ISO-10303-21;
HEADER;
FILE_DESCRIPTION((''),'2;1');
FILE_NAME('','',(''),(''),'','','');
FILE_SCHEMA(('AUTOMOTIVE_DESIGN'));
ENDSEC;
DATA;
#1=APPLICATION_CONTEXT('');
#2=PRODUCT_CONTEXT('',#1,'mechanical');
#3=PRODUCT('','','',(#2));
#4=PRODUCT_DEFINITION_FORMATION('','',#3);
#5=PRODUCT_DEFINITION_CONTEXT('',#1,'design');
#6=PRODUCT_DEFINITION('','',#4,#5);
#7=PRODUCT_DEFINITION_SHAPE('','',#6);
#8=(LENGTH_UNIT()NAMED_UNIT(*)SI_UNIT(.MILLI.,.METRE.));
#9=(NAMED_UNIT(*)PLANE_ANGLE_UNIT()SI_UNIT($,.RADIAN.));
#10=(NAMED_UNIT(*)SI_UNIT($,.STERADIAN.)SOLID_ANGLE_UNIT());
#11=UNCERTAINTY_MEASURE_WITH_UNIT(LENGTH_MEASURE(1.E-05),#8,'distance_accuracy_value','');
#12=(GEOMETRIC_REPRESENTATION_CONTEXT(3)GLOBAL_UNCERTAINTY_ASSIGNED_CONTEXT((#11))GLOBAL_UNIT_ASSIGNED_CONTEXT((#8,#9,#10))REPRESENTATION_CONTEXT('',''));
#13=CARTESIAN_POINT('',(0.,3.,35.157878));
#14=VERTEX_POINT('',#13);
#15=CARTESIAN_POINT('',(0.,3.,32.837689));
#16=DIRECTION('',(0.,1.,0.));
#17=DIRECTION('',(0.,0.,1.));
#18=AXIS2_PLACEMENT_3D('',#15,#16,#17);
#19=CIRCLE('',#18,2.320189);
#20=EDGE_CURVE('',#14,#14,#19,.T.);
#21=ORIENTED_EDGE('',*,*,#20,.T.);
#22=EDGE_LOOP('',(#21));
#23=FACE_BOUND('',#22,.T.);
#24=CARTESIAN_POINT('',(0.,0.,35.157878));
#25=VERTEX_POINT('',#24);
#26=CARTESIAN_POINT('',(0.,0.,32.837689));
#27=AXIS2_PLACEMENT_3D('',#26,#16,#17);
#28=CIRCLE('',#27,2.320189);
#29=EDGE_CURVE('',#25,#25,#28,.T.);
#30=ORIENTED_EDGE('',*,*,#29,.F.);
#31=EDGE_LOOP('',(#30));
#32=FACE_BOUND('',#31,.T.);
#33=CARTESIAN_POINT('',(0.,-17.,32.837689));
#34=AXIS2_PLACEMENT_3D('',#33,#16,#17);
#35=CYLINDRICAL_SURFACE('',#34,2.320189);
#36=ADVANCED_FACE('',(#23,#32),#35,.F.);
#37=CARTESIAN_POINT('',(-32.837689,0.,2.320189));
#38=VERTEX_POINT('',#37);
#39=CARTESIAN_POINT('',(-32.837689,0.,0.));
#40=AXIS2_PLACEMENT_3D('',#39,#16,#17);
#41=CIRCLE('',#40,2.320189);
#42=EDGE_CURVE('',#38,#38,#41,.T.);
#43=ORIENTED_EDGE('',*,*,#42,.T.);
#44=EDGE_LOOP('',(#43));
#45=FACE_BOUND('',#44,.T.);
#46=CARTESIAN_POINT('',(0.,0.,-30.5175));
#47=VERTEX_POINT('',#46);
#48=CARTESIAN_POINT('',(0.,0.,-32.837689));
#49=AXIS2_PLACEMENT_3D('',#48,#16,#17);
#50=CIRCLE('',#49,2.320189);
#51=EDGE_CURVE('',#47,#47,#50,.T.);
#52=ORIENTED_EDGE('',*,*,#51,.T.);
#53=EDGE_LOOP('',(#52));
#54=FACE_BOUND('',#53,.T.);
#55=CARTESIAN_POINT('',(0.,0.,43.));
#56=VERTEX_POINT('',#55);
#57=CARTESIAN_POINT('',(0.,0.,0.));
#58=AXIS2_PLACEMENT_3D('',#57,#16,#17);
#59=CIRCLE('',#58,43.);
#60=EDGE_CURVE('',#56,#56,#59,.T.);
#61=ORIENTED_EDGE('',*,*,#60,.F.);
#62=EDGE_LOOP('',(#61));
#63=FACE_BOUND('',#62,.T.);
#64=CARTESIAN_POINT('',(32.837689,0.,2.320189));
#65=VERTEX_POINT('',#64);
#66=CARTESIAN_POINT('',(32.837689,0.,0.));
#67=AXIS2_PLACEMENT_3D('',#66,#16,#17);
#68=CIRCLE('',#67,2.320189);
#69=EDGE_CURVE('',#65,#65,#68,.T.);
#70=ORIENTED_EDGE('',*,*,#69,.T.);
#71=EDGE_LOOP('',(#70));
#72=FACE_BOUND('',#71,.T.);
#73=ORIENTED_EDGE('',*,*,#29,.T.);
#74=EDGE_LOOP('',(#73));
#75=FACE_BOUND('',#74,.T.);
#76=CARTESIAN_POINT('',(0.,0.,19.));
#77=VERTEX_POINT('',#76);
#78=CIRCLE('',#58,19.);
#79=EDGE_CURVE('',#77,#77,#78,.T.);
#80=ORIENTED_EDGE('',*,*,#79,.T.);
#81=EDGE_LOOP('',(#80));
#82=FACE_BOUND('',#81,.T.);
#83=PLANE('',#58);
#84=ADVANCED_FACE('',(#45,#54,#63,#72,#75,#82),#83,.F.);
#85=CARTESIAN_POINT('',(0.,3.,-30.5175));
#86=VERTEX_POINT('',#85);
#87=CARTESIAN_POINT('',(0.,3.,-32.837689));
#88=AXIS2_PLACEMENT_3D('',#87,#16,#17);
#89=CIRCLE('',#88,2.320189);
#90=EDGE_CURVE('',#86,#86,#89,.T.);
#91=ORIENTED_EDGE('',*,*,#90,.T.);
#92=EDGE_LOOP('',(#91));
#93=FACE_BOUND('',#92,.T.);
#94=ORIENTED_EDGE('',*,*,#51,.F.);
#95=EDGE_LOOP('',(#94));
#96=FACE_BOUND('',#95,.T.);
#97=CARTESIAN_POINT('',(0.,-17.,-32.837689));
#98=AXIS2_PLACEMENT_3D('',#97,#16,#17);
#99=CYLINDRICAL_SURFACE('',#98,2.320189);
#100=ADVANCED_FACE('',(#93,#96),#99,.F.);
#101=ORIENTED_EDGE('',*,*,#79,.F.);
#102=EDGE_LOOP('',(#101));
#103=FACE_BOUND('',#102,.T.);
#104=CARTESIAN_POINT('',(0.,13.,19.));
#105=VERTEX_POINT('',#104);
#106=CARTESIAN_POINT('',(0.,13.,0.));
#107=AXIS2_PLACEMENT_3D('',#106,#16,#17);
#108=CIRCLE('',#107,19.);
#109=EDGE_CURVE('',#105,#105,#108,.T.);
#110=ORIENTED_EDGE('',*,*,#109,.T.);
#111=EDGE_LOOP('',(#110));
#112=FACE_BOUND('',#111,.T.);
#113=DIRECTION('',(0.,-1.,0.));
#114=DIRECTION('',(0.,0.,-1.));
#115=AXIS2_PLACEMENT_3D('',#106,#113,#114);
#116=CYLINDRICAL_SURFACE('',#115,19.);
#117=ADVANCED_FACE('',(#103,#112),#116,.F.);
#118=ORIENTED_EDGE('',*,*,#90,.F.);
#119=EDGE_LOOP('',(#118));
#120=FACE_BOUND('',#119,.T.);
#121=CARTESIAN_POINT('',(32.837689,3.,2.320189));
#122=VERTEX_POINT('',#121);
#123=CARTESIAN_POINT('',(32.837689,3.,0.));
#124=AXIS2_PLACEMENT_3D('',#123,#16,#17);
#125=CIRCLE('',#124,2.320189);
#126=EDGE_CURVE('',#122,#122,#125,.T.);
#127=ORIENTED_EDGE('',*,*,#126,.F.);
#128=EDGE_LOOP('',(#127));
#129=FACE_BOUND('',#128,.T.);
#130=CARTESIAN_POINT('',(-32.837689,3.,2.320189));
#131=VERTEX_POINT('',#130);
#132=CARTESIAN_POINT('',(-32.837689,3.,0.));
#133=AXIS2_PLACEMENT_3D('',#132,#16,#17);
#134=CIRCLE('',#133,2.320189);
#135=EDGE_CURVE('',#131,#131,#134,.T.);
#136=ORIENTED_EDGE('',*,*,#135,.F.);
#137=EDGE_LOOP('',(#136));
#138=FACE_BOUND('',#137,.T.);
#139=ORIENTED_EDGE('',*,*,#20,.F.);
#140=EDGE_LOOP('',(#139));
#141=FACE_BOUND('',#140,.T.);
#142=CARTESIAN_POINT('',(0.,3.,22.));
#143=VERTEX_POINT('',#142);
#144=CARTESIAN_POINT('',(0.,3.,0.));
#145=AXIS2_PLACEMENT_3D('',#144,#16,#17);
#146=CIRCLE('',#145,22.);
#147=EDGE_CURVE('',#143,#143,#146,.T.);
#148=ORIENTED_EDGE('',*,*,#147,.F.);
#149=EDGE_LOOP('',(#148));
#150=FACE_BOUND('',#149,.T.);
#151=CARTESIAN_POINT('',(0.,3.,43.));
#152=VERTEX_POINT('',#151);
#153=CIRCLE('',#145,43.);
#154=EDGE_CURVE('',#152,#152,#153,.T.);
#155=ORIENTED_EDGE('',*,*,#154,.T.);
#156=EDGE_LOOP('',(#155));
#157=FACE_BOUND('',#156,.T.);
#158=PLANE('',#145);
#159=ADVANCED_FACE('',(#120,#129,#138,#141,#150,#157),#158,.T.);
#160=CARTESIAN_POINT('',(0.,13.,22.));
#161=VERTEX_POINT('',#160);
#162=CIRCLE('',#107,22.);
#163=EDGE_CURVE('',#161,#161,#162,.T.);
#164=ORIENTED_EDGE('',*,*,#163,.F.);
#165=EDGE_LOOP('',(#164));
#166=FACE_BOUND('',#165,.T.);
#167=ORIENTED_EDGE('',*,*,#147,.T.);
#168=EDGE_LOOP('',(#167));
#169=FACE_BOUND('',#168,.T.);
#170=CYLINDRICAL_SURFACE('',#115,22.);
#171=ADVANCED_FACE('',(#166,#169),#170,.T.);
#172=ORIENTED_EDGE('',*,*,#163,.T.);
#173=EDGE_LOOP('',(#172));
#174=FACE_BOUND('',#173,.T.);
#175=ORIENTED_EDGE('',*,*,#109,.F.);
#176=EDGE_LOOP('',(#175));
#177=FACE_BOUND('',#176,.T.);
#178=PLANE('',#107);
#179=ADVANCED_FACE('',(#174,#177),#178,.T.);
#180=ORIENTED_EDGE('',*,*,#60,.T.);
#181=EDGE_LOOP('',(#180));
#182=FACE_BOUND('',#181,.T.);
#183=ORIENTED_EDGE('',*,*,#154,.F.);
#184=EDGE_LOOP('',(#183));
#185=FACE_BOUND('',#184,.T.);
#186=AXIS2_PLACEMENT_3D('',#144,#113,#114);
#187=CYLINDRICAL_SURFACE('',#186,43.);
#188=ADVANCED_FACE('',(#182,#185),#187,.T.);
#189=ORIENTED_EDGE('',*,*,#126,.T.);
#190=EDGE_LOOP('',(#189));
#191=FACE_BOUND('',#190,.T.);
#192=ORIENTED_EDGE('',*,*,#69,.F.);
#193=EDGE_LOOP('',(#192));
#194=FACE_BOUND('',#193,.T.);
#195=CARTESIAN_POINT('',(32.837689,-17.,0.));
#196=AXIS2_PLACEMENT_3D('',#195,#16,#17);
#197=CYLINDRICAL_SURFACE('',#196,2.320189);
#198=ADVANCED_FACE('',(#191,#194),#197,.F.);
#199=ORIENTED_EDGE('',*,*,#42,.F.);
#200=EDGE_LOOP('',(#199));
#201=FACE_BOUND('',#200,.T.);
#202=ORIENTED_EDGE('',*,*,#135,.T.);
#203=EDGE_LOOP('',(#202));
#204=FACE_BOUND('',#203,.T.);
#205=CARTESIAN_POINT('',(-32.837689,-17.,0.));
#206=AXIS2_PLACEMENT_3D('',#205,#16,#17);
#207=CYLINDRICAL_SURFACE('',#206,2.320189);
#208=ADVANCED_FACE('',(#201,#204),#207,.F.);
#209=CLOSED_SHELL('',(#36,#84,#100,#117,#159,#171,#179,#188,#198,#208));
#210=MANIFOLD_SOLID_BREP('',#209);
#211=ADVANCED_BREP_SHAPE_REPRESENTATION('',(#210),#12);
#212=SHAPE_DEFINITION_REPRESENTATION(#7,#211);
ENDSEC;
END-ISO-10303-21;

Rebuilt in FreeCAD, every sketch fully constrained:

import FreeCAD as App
import Part
import Sketcher
from FreeCAD import Vector
Q = App.Units.Quantity

doc = App.newDocument("Part")
params = doc.addObject("Spreadsheet::Sheet", "Params")
for row, (alias, value) in enumerate([
    ("sketch1_diameter", "86 mm"),
    ("pad1_length", "3 mm"),
    ("sketch2_diameter", "44 mm"),
    ("sketch2_diameter2", "38 mm"),
    ("pad2_length", "10 mm"),
    ("sketch3_diameter", "38 mm"),
    ("pocket1_length", "20 mm"),
], start=1):
    params.set(f"A{row}", alias)
    params.set(f"B{row}", "=" + value)
    params.setAlias(f"B{row}", alias)

body = doc.addObject("PartDesign::Body", "Body")

# Sketch on XZ plane
sketch1 = doc.addObject("Sketcher::SketchObject", "Sketch")
body.addObject(sketch1)
sketch1.AttachmentSupport = (doc.XZ_Plane, [""])
sketch1.MapMode = "FlatFace"
sketch1.addGeometry(Part.Circle(Vector(0, 0, 0), Vector(0, 0, 1), 43), False)
sketch1.addConstraint([
    Sketcher.Constraint("Coincident", 0, 3, -1, 1),
    Sketcher.Constraint("Diameter", 0, Q("86 mm")),
])
sketch1.setExpression("Constraints[1]", "Params.sketch1_diameter")
pad1 = doc.addObject("PartDesign::Pad", "Pad")
body.addObject(pad1)
pad1.Profile = sketch1
pad1.setExpression("Length", "Params.pad1_length")
pad1.Reversed = True

# Sketch on XZ plane
sketch2 = doc.addObject("Sketcher::SketchObject", "Sketch001")
body.addObject(sketch2)
sketch2.AttachmentSupport = (doc.XZ_Plane, [""])
sketch2.MapMode = "FlatFace"
sketch2.AttachmentOffset = App.Placement(Vector(0, 0, -3), App.Rotation())
sketch2.addGeometry([
    Part.Circle(Vector(0, 0, 0), Vector(0, 0, 1), 22),
    Part.Circle(Vector(0, 0, 0), Vector(0, 0, 1), 19),
], False)
sketch2.addConstraint([
    Sketcher.Constraint("Coincident", 0, 3, -1, 1),
    Sketcher.Constraint("Coincident", 1, 3, -1, 1),
    Sketcher.Constraint("Diameter", 0, Q("44 mm")),
    Sketcher.Constraint("Diameter", 1, Q("38 mm")),
])
sketch2.setExpression("Constraints[2]", "Params.sketch2_diameter")
sketch2.setExpression("Constraints[3]", "Params.sketch2_diameter2")
pad2 = doc.addObject("PartDesign::Pad", "Pad001")
body.addObject(pad2)
pad2.Profile = sketch2
pad2.setExpression("Length", "Params.pad2_length")
pad2.Reversed = True

# Sketch on XZ plane
sketch3 = doc.addObject("Sketcher::SketchObject", "Sketch002")
body.addObject(sketch3)
sketch3.AttachmentSupport = (doc.XZ_Plane, [""])
sketch3.MapMode = "FlatFace"
sketch3.AttachmentOffset = App.Placement(Vector(0, 0, -3), App.Rotation())
sketch3.addGeometry([
    Part.Circle(Vector(0, 0, 0), Vector(0, 0, 1), 19),  # 0
    Part.Circle(Vector(0, -32.837689, 0), Vector(0, 0, 1), 2.320189),  # 1
    Part.Circle(Vector(32.837689, 0, 0), Vector(0, 0, 1), 2.320189),  # 2
    Part.Circle(Vector(0, 32.837689, 0), Vector(0, 0, 1), 2.320189),  # 3
    Part.Circle(Vector(-32.837689, 0, 0), Vector(0, 0, 1), 2.320189),  # 4
], False)
sketch3.addConstraint([
    Sketcher.Constraint("Coincident", 0, 3, -1, 1),
    Sketcher.Constraint("Equal", 1, 2),
    Sketcher.Constraint("Equal", 2, 3),
    Sketcher.Constraint("Equal", 3, 4),
    Sketcher.Constraint("Symmetric", 1, 3, 3, 3, -1, 1),
    Sketcher.Constraint("Symmetric", 2, 3, 4, 3, -1, 1),
    Sketcher.Constraint("PointOnObject", 1, 3, -2),
    Sketcher.Constraint("PointOnObject", 2, 3, -1),
    Sketcher.Constraint("Diameter", 0, Q("38 mm")),
    Sketcher.Constraint("Diameter", 1, Q("4.640378 mm")),
    Sketcher.Constraint("DistanceY", 1, 3, -1, 1, Q("32.837689 mm")),
    Sketcher.Constraint("DistanceX", -1, 1, 2, 3, Q("32.837689 mm")),
])
sketch3.setExpression("Constraints[8]", "Params.sketch3_diameter")
pocket1 = doc.addObject("PartDesign::Pocket", "Pocket")
body.addObject(pocket1)
pocket1.Profile = sketch3
pocket1.setExpression("Length", "Params.pocket1_length")
pocket1.Reversed = True

doc.recompute()
